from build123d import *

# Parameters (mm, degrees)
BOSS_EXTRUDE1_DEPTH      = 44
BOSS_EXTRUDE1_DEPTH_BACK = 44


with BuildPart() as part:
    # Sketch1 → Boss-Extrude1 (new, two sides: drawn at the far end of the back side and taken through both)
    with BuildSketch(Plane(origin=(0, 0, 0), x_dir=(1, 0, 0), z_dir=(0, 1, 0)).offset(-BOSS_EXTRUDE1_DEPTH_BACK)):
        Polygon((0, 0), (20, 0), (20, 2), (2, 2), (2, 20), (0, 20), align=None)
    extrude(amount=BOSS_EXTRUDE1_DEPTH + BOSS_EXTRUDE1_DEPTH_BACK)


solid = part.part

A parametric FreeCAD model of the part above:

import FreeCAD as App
import Part
import Sketcher
from FreeCAD import Vector
Q = App.Units.Quantity


def add_polygon(sketch, points):
    """Adds a closed chain of lines whose ends are joined by coincident constraints."""
    first, n = sketch.GeometryCount, len(points)
    for a, b in zip(points, points[1:] + points[:1]):
        sketch.addGeometry(Part.LineSegment(App.Vector(*a, 0), App.Vector(*b, 0)), False)
    for i in range(n):
        sketch.addConstraint(Sketcher.Constraint("Coincident", first + i, 2, first + (i + 1) % n, 1))

doc = App.newDocument("Part")
params = doc.addObject("Spreadsheet::Sheet", "Params")
for row, (alias, value) in enumerate([
    ("sketch1_width", "20 mm"),
    ("sketch1_width2", "18 mm"),
    ("pad1_length", "44 mm"),
    ("pad1_length2", "44 mm"),
], start=1):
    params.set(f"A{row}", alias)
    params.set(f"B{row}", "=" + value)
    params.setAlias(f"B{row}", alias)

body = doc.addObject("PartDesign::Body", "Body")

# Sketch on XZ plane
sketch1 = doc.addObject("Sketcher::SketchObject", "Sketch")
body.addObject(sketch1)
sketch1.AttachmentSupport = (doc.XZ_Plane, [""])
sketch1.MapMode = "FlatFace"
add_polygon(sketch1, [(0, 0), (20, 0), (20, -2), (2, -2), (2, -20), (0, -20)])  # lines 0-5
sketch1.addConstraint(Sketcher.Constraint("Horizontal", 0))
sketch1.addConstraint(Sketcher.Constraint("Vertical", 1))
sketch1.addConstraint(Sketcher.Constraint("Horizontal", 2))
sketch1.addConstraint(Sketcher.Constraint("Vertical", 3))
sketch1.addConstraint(Sketcher.Constraint("Horizontal", 4))
sketch1.addConstraint(Sketcher.Constraint("Vertical", 5))
sketch1.addConstraint(Sketcher.Constraint("Coincident", 5, 2, -1, 1))
sketch1.addConstraint(Sketcher.Constraint("Equal", 4, 1))
sketch1.addConstraint(Sketcher.Constraint("Equal", 2, 3))
sketch1.addConstraint(Sketcher.Constraint("DistanceX", 0, 1, 0, 2, Q("20 mm")))
sketch1.addConstraint(Sketcher.Constraint("DistanceX", 2, 2, 2, 1, Q("18 mm")))
sketch1.setExpression("Constraints[15]", "Params.sketch1_width")
sketch1.setExpression("Constraints[16]", "Params.sketch1_width2")
pad1 = doc.addObject("PartDesign::Pad", "Pad")
body.addObject(pad1)
pad1.Profile = sketch1
pad1.Type = "TwoLengths"
pad1.setExpression("Length", "Params.pad1_length")
pad1.setExpression("Length2", "Params.pad1_length2")
pad1.Reversed = True

doc.recompute()
